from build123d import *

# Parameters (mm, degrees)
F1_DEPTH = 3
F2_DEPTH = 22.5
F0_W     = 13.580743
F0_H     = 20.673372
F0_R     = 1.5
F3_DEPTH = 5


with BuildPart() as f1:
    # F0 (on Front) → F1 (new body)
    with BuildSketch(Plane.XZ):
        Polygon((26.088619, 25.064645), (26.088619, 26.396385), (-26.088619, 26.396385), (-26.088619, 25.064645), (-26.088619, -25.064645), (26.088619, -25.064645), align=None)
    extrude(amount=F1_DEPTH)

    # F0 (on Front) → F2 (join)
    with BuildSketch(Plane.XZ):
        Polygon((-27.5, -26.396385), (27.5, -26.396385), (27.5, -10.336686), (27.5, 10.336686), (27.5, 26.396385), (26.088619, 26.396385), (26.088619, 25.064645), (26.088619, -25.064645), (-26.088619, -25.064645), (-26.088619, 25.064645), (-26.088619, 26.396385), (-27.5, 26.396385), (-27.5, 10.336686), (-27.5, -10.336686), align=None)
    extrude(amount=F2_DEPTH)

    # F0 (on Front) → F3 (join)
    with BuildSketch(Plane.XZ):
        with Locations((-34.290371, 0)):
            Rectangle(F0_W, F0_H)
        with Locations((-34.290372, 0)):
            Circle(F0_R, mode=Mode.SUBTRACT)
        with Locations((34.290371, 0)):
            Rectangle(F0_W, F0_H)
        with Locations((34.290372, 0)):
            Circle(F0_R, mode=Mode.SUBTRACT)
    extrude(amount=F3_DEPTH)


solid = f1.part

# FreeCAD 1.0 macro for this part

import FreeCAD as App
import Part
import Sketcher

doc = App.newDocument("Part")
params = doc.addObject("Spreadsheet::Sheet", "Params")
for row, (alias, value) in enumerate([
    ("pad1_length", "3 mm"),
    ("sketch2_width", "55 mm"),
    ("pad2_length", "22.5 mm"),
    ("sketch3_diameter", "3 mm"),
    ("pad3_length", "5 mm"),
], start=1):
    params.set(f"A{row}", alias)
    params.set(f"B{row}", "=" + value)
    params.setAlias(f"B{row}", alias)

body = doc.addObject("PartDesign::Body", "Body")

sketch1 = body.newObject("Sketcher::SketchObject", "Sketch")
sketch1.AttachmentSupport = (doc.getObject("XZ_Plane"), [""])
sketch1.MapMode = "FlatFace"
sketch1.addGeometry([
    Part.LineSegment(App.Vector(26.088619, 26.396385, 0), App.Vector(-26.088619, 26.396385, 0)),
    Part.LineSegment(App.Vector(-26.088619, 26.396385, 0), App.Vector(-26.088619, -25.064645, 0)),
    Part.LineSegment(App.Vector(-26.088619, -25.064645, 0), App.Vector(26.088619, -25.064645, 0)),
    Part.LineSegment(App.Vector(26.088619, -25.064645, 0), App.Vector(26.088619, 26.396385, 0)),
], False)
sketch1.addConstraint([
    Sketcher.Constraint("Coincident", 0, 2, 1, 1),
    Sketcher.Constraint("Coincident", 1, 2, 2, 1),
    Sketcher.Constraint("Coincident", 2, 2, 3, 1),
    Sketcher.Constraint("Coincident", 3, 2, 0, 1),
    Sketcher.Constraint("Horizontal", 0),
    Sketcher.Constraint("Vertical", 1),
    Sketcher.Constraint("Horizontal", 2),
    Sketcher.Constraint("Vertical", 3),
    Sketcher.Constraint("DistanceX", 0, 2, 0, 1, 52.177238),
    Sketcher.Constraint("DistanceY", 1, 2, 1, 1, 51.46103),
    Sketcher.Constraint("DistanceX", 0, 2, -1, 1, 26.088619),
    Sketcher.Constraint("DistanceY", -1, 1, 0, 2, 26.396385),
])
pad1 = body.newObject("PartDesign::Pad", "Pad")
pad1.Profile = sketch1
pad1.setExpression("Length", "Params.pad1_length")

sketch2 = body.newObject("Sketcher::SketchObject", "Sketch001")
sketch2.AttachmentSupport = (doc.getObject("XZ_Plane"), [""])
sketch2.MapMode = "FlatFace"
sketch2.addGeometry([
    Part.LineSegment(App.Vector(-27.5, -26.396385, 0), App.Vector(27.5, -26.396385, 0)),
    Part.LineSegment(App.Vector(27.5, -26.396385, 0), App.Vector(27.5, 26.396385, 0)),
    Part.LineSegment(App.Vector(27.5, 26.396385, 0), App.Vector(26.088619, 26.396385, 0)),
    Part.LineSegment(App.Vector(26.088619, 26.396385, 0), App.Vector(26.088619, -25.064645, 0)),
    Part.LineSegment(App.Vector(26.088619, -25.064645, 0), App.Vector(-26.088619, -25.064645, 0)),
    Part.LineSegment(App.Vector(-26.088619, -25.064645, 0), App.Vector(-26.088619, 26.396385, 0)),
    Part.LineSegment(App.Vector(-26.088619, 26.396385, 0), App.Vector(-27.5, 26.396385, 0)),
    Part.LineSegment(App.Vector(-27.5, 26.396385, 0), App.Vector(-27.5, -26.396385, 0)),
], False)
sketch2.addConstraint([
    Sketcher.Constraint("Coincident", 0, 2, 1, 1),
    Sketcher.Constraint("Coincident", 1, 2, 2, 1),
    Sketcher.Constraint("Coincident", 2, 2, 3, 1),
    Sketcher.Constraint("Coincident", 3, 2, 4, 1),
    Sketcher.Constraint("Coincident", 4, 2, 5, 1),
    Sketcher.Constraint("Coincident", 5, 2, 6, 1),
    Sketcher.Constraint("Coincident", 6, 2, 7, 1),
    Sketcher.Constraint("Coincident", 7, 2, 0, 1),
    Sketcher.Constraint("Horizontal", 0),
    Sketcher.Constraint("Vertical", 1),
    Sketcher.Constraint("Horizontal", 2),
    Sketcher.Constraint("Vertical", 3),
    Sketcher.Constraint("Horizontal", 4),
    Sketcher.Constraint("Vertical", 5),
    Sketcher.Constraint("Horizontal", 6),
    Sketcher.Constraint("Vertical", 7),
    Sketcher.Constraint("Symmetric", 0, 2, 6, 2, -1, 1),
    Sketcher.Constraint("Symmetric", 2, 2, 5, 2, -2),
    Sketcher.Constraint("DistanceX", 0, 1, 0, 2, 55.0),
    Sketcher.Constraint("DistanceX", 2, 2, 2, 1, 1.411381),
    Sketcher.Constraint("DistanceY", 1, 1, 1, 2, 52.79277),
    Sketcher.Constraint("DistanceY", 3, 2, 3, 1, 51.46103),
])
sketch2.setExpression("Constraints[18]", "Params.sketch2_width")
pad2 = body.newObject("PartDesign::Pad", "Pad001")
pad2.Profile = sketch2
pad2.setExpression("Length", "Params.pad2_length")

sketch3 = body.newObject("Sketcher::SketchObject", "Sketch002")
sketch3.AttachmentSupport = (doc.getObject("XZ_Plane"), [""])
sketch3.MapMode = "FlatFace"
sketch3.addGeometry([
    Part.LineSegment(App.Vector(-41.080742, 10.336686, 0), App.Vector(-41.080742, -10.336686, 0)),
    Part.LineSegment(App.Vector(-41.080742, -10.336686, 0), App.Vector(-27.5, -10.336686, 0)),
    Part.LineSegment(App.Vector(-27.5, -10.336686, 0), App.Vector(-27.5, 10.336686, 0)),
    Part.LineSegment(App.Vector(-27.5, 10.336686, 0), App.Vector(-41.080742, 10.336686, 0)),
    Part.Circle(App.Vector(-34.290372, 0, 0), App.Vector(0, 0, 1), 1.5),
    Part.LineSegment(App.Vector(27.5, 10.336686, 0), App.Vector(27.5, -10.336686, 0)),
    Part.LineSegment(App.Vector(27.5, -10.336686, 0), App.Vector(41.080742, -10.336686, 0)),
    Part.LineSegment(App.Vector(41.080742, -10.336686, 0), App.Vector(41.080742, 10.336686, 0)),
    Part.LineSegment(App.Vector(41.080742, 10.336686, 0), App.Vector(27.5, 10.336686, 0)),
    Part.Circle(App.Vector(34.290372, 0, 0), App.Vector(0, 0, 1), 1.5),
], False)
sketch3.addConstraint([
    Sketcher.Constraint("Coincident", 0, 2, 1, 1),
    Sketcher.Constraint("Coincident", 1, 2, 2, 1),
    Sketcher.Constraint("Coincident", 2, 2, 3, 1),
    Sketcher.Constraint("Coincident", 3, 2, 0, 1),
    Sketcher.Constraint("Coincident", 5, 2, 6, 1),
    Sketcher.Constraint("Coincident", 6, 2, 7, 1),
    Sketcher.Constraint("Coincident", 7, 2, 8, 1),
    Sketcher.Constraint("Coincident", 8, 2, 5, 1),
    Sketcher.Constraint("Vertical", 0),
    Sketcher.Constraint("Horizontal", 1),
    Sketcher.Constraint("Vertical", 2),
    Sketcher.Constraint("Horizontal", 3),
    Sketcher.Constraint("Vertical", 5),
    Sketcher.Constraint("Horizontal", 6),
    Sketcher.Constraint("Vertical", 7),
    Sketcher.Constraint("Horizontal", 8),
    Sketcher.Constraint("Equal", 4, 9),
    Sketcher.Constraint("Symmetric", 4, 3, 9, 3, -1, 1),
    Sketcher.Constraint("Symmetric", 2, 2, 5, 2, -1, 1),
    Sketcher.Constraint("Symmetric", 0, 2, 7, 2, -1, 1),
    Sketcher.Constraint("PointOnObject", 4, 3, -1),
    Sketcher.Constraint("Horizontal", 1, 2, 5, 2),
    Sketcher.Constraint("Diameter", 4, 3.0),
    Sketcher.Constraint("DistanceX", 1, 2, 5, 2, 54.999999),
    Sketcher.Constraint("DistanceX", 1, 1, 1, 2, 13.580743),
    Sketcher.Constraint("DistanceY", 0, 2, 0, 1, 20.673372),
    Sketcher.Constraint("DistanceX", 4, 3, -1, 1, 34.290372),
])
sketch3.setExpression("Constraints[22]", "Params.sketch3_diameter")
pad3 = body.newObject("PartDesign::Pad", "Pad002")
pad3.Profile = sketch3
pad3.setExpression("Length", "Params.pad3_length")

doc.recompute()
